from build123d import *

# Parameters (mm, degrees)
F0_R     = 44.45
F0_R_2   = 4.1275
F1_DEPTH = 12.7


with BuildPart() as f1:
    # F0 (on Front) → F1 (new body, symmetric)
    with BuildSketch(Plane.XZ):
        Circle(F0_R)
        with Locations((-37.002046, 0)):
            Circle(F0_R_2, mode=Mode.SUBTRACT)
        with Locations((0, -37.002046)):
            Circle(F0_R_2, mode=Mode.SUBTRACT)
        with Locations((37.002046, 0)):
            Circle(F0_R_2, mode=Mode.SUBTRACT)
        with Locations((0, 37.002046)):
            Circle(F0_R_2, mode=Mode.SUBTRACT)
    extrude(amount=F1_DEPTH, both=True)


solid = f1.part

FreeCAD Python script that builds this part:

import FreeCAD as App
import Part
import Sketcher
from FreeCAD import Vector
Q = App.Units.Quantity

doc = App.newDocument("Part")
body = doc.addObject("PartDesign::Body", "Body")

sketch1 = body.newObject("Sketcher::SketchObject", "Sketch")
sketch1.AttachmentSupport = (doc.getObject("XZ_Plane"), [""])
sketch1.MapMode = "FlatFace"
sketch1.addGeometry(Part.Circle(Vector(0, 0, 0), Vector(0, 0, 1), 44.5), False)
sketch1.addGeometry(Part.Circle(Vector(0, -37, 0), Vector(0, 0, 1), 4.1), False)
sketch1.addGeometry(Part.Circle(Vector(-37, 0, 0), Vector(0, 0, 1), 4.1), False)
sketch1.addGeometry(Part.Circle(Vector(37, 0, 0), Vector(0, 0, 1), 4.1), False)
sketch1.addGeometry(Part.Circle(Vector(0, 37, 0), Vector(0, 0, 1), 4.1), False)
sketch1.addConstraint(Sketcher.Constraint("Coincident", 0, 3, -1, 1))
sketch1.addConstraint(Sketcher.Constraint("Equal", 1, 2))
sketch1.addConstraint(Sketcher.Constraint("Equal", 2, 3))
sketch1.addConstraint(Sketcher.Constraint("Equal", 3, 4))
sketch1.addConstraint(Sketcher.Constraint("Symmetric", 2, 3, 3, 3, -1, 1))
sketch1.addConstraint(Sketcher.Constraint("Symmetric", 1, 3, 4, 3, -1, 1))
sketch1.addConstraint(Sketcher.Constraint("PointOnObject", 1, 3, -2))
sketch1.addConstraint(Sketcher.Constraint("PointOnObject", 2, 3, -1))
sketch1.addConstraint(Sketcher.Constraint("Diameter", 0, Q("3.5 in")))
sketch1.addConstraint(Sketcher.Constraint("Diameter", 1, Q("0.325 in")))
sketch1.addConstraint(Sketcher.Constraint("DistanceX", 2, 3, 3, 3, 74.004092))
sketch1.addConstraint(Sketcher.Constraint("DistanceY", 1, 3, 4, 3, 74.004092))
pad1 = body.newObject("PartDesign::Pad", "Pad")
pad1.Profile = sketch1
pad1.Length = Q("1 in")
pad1.Midplane = True

doc.recompute()
